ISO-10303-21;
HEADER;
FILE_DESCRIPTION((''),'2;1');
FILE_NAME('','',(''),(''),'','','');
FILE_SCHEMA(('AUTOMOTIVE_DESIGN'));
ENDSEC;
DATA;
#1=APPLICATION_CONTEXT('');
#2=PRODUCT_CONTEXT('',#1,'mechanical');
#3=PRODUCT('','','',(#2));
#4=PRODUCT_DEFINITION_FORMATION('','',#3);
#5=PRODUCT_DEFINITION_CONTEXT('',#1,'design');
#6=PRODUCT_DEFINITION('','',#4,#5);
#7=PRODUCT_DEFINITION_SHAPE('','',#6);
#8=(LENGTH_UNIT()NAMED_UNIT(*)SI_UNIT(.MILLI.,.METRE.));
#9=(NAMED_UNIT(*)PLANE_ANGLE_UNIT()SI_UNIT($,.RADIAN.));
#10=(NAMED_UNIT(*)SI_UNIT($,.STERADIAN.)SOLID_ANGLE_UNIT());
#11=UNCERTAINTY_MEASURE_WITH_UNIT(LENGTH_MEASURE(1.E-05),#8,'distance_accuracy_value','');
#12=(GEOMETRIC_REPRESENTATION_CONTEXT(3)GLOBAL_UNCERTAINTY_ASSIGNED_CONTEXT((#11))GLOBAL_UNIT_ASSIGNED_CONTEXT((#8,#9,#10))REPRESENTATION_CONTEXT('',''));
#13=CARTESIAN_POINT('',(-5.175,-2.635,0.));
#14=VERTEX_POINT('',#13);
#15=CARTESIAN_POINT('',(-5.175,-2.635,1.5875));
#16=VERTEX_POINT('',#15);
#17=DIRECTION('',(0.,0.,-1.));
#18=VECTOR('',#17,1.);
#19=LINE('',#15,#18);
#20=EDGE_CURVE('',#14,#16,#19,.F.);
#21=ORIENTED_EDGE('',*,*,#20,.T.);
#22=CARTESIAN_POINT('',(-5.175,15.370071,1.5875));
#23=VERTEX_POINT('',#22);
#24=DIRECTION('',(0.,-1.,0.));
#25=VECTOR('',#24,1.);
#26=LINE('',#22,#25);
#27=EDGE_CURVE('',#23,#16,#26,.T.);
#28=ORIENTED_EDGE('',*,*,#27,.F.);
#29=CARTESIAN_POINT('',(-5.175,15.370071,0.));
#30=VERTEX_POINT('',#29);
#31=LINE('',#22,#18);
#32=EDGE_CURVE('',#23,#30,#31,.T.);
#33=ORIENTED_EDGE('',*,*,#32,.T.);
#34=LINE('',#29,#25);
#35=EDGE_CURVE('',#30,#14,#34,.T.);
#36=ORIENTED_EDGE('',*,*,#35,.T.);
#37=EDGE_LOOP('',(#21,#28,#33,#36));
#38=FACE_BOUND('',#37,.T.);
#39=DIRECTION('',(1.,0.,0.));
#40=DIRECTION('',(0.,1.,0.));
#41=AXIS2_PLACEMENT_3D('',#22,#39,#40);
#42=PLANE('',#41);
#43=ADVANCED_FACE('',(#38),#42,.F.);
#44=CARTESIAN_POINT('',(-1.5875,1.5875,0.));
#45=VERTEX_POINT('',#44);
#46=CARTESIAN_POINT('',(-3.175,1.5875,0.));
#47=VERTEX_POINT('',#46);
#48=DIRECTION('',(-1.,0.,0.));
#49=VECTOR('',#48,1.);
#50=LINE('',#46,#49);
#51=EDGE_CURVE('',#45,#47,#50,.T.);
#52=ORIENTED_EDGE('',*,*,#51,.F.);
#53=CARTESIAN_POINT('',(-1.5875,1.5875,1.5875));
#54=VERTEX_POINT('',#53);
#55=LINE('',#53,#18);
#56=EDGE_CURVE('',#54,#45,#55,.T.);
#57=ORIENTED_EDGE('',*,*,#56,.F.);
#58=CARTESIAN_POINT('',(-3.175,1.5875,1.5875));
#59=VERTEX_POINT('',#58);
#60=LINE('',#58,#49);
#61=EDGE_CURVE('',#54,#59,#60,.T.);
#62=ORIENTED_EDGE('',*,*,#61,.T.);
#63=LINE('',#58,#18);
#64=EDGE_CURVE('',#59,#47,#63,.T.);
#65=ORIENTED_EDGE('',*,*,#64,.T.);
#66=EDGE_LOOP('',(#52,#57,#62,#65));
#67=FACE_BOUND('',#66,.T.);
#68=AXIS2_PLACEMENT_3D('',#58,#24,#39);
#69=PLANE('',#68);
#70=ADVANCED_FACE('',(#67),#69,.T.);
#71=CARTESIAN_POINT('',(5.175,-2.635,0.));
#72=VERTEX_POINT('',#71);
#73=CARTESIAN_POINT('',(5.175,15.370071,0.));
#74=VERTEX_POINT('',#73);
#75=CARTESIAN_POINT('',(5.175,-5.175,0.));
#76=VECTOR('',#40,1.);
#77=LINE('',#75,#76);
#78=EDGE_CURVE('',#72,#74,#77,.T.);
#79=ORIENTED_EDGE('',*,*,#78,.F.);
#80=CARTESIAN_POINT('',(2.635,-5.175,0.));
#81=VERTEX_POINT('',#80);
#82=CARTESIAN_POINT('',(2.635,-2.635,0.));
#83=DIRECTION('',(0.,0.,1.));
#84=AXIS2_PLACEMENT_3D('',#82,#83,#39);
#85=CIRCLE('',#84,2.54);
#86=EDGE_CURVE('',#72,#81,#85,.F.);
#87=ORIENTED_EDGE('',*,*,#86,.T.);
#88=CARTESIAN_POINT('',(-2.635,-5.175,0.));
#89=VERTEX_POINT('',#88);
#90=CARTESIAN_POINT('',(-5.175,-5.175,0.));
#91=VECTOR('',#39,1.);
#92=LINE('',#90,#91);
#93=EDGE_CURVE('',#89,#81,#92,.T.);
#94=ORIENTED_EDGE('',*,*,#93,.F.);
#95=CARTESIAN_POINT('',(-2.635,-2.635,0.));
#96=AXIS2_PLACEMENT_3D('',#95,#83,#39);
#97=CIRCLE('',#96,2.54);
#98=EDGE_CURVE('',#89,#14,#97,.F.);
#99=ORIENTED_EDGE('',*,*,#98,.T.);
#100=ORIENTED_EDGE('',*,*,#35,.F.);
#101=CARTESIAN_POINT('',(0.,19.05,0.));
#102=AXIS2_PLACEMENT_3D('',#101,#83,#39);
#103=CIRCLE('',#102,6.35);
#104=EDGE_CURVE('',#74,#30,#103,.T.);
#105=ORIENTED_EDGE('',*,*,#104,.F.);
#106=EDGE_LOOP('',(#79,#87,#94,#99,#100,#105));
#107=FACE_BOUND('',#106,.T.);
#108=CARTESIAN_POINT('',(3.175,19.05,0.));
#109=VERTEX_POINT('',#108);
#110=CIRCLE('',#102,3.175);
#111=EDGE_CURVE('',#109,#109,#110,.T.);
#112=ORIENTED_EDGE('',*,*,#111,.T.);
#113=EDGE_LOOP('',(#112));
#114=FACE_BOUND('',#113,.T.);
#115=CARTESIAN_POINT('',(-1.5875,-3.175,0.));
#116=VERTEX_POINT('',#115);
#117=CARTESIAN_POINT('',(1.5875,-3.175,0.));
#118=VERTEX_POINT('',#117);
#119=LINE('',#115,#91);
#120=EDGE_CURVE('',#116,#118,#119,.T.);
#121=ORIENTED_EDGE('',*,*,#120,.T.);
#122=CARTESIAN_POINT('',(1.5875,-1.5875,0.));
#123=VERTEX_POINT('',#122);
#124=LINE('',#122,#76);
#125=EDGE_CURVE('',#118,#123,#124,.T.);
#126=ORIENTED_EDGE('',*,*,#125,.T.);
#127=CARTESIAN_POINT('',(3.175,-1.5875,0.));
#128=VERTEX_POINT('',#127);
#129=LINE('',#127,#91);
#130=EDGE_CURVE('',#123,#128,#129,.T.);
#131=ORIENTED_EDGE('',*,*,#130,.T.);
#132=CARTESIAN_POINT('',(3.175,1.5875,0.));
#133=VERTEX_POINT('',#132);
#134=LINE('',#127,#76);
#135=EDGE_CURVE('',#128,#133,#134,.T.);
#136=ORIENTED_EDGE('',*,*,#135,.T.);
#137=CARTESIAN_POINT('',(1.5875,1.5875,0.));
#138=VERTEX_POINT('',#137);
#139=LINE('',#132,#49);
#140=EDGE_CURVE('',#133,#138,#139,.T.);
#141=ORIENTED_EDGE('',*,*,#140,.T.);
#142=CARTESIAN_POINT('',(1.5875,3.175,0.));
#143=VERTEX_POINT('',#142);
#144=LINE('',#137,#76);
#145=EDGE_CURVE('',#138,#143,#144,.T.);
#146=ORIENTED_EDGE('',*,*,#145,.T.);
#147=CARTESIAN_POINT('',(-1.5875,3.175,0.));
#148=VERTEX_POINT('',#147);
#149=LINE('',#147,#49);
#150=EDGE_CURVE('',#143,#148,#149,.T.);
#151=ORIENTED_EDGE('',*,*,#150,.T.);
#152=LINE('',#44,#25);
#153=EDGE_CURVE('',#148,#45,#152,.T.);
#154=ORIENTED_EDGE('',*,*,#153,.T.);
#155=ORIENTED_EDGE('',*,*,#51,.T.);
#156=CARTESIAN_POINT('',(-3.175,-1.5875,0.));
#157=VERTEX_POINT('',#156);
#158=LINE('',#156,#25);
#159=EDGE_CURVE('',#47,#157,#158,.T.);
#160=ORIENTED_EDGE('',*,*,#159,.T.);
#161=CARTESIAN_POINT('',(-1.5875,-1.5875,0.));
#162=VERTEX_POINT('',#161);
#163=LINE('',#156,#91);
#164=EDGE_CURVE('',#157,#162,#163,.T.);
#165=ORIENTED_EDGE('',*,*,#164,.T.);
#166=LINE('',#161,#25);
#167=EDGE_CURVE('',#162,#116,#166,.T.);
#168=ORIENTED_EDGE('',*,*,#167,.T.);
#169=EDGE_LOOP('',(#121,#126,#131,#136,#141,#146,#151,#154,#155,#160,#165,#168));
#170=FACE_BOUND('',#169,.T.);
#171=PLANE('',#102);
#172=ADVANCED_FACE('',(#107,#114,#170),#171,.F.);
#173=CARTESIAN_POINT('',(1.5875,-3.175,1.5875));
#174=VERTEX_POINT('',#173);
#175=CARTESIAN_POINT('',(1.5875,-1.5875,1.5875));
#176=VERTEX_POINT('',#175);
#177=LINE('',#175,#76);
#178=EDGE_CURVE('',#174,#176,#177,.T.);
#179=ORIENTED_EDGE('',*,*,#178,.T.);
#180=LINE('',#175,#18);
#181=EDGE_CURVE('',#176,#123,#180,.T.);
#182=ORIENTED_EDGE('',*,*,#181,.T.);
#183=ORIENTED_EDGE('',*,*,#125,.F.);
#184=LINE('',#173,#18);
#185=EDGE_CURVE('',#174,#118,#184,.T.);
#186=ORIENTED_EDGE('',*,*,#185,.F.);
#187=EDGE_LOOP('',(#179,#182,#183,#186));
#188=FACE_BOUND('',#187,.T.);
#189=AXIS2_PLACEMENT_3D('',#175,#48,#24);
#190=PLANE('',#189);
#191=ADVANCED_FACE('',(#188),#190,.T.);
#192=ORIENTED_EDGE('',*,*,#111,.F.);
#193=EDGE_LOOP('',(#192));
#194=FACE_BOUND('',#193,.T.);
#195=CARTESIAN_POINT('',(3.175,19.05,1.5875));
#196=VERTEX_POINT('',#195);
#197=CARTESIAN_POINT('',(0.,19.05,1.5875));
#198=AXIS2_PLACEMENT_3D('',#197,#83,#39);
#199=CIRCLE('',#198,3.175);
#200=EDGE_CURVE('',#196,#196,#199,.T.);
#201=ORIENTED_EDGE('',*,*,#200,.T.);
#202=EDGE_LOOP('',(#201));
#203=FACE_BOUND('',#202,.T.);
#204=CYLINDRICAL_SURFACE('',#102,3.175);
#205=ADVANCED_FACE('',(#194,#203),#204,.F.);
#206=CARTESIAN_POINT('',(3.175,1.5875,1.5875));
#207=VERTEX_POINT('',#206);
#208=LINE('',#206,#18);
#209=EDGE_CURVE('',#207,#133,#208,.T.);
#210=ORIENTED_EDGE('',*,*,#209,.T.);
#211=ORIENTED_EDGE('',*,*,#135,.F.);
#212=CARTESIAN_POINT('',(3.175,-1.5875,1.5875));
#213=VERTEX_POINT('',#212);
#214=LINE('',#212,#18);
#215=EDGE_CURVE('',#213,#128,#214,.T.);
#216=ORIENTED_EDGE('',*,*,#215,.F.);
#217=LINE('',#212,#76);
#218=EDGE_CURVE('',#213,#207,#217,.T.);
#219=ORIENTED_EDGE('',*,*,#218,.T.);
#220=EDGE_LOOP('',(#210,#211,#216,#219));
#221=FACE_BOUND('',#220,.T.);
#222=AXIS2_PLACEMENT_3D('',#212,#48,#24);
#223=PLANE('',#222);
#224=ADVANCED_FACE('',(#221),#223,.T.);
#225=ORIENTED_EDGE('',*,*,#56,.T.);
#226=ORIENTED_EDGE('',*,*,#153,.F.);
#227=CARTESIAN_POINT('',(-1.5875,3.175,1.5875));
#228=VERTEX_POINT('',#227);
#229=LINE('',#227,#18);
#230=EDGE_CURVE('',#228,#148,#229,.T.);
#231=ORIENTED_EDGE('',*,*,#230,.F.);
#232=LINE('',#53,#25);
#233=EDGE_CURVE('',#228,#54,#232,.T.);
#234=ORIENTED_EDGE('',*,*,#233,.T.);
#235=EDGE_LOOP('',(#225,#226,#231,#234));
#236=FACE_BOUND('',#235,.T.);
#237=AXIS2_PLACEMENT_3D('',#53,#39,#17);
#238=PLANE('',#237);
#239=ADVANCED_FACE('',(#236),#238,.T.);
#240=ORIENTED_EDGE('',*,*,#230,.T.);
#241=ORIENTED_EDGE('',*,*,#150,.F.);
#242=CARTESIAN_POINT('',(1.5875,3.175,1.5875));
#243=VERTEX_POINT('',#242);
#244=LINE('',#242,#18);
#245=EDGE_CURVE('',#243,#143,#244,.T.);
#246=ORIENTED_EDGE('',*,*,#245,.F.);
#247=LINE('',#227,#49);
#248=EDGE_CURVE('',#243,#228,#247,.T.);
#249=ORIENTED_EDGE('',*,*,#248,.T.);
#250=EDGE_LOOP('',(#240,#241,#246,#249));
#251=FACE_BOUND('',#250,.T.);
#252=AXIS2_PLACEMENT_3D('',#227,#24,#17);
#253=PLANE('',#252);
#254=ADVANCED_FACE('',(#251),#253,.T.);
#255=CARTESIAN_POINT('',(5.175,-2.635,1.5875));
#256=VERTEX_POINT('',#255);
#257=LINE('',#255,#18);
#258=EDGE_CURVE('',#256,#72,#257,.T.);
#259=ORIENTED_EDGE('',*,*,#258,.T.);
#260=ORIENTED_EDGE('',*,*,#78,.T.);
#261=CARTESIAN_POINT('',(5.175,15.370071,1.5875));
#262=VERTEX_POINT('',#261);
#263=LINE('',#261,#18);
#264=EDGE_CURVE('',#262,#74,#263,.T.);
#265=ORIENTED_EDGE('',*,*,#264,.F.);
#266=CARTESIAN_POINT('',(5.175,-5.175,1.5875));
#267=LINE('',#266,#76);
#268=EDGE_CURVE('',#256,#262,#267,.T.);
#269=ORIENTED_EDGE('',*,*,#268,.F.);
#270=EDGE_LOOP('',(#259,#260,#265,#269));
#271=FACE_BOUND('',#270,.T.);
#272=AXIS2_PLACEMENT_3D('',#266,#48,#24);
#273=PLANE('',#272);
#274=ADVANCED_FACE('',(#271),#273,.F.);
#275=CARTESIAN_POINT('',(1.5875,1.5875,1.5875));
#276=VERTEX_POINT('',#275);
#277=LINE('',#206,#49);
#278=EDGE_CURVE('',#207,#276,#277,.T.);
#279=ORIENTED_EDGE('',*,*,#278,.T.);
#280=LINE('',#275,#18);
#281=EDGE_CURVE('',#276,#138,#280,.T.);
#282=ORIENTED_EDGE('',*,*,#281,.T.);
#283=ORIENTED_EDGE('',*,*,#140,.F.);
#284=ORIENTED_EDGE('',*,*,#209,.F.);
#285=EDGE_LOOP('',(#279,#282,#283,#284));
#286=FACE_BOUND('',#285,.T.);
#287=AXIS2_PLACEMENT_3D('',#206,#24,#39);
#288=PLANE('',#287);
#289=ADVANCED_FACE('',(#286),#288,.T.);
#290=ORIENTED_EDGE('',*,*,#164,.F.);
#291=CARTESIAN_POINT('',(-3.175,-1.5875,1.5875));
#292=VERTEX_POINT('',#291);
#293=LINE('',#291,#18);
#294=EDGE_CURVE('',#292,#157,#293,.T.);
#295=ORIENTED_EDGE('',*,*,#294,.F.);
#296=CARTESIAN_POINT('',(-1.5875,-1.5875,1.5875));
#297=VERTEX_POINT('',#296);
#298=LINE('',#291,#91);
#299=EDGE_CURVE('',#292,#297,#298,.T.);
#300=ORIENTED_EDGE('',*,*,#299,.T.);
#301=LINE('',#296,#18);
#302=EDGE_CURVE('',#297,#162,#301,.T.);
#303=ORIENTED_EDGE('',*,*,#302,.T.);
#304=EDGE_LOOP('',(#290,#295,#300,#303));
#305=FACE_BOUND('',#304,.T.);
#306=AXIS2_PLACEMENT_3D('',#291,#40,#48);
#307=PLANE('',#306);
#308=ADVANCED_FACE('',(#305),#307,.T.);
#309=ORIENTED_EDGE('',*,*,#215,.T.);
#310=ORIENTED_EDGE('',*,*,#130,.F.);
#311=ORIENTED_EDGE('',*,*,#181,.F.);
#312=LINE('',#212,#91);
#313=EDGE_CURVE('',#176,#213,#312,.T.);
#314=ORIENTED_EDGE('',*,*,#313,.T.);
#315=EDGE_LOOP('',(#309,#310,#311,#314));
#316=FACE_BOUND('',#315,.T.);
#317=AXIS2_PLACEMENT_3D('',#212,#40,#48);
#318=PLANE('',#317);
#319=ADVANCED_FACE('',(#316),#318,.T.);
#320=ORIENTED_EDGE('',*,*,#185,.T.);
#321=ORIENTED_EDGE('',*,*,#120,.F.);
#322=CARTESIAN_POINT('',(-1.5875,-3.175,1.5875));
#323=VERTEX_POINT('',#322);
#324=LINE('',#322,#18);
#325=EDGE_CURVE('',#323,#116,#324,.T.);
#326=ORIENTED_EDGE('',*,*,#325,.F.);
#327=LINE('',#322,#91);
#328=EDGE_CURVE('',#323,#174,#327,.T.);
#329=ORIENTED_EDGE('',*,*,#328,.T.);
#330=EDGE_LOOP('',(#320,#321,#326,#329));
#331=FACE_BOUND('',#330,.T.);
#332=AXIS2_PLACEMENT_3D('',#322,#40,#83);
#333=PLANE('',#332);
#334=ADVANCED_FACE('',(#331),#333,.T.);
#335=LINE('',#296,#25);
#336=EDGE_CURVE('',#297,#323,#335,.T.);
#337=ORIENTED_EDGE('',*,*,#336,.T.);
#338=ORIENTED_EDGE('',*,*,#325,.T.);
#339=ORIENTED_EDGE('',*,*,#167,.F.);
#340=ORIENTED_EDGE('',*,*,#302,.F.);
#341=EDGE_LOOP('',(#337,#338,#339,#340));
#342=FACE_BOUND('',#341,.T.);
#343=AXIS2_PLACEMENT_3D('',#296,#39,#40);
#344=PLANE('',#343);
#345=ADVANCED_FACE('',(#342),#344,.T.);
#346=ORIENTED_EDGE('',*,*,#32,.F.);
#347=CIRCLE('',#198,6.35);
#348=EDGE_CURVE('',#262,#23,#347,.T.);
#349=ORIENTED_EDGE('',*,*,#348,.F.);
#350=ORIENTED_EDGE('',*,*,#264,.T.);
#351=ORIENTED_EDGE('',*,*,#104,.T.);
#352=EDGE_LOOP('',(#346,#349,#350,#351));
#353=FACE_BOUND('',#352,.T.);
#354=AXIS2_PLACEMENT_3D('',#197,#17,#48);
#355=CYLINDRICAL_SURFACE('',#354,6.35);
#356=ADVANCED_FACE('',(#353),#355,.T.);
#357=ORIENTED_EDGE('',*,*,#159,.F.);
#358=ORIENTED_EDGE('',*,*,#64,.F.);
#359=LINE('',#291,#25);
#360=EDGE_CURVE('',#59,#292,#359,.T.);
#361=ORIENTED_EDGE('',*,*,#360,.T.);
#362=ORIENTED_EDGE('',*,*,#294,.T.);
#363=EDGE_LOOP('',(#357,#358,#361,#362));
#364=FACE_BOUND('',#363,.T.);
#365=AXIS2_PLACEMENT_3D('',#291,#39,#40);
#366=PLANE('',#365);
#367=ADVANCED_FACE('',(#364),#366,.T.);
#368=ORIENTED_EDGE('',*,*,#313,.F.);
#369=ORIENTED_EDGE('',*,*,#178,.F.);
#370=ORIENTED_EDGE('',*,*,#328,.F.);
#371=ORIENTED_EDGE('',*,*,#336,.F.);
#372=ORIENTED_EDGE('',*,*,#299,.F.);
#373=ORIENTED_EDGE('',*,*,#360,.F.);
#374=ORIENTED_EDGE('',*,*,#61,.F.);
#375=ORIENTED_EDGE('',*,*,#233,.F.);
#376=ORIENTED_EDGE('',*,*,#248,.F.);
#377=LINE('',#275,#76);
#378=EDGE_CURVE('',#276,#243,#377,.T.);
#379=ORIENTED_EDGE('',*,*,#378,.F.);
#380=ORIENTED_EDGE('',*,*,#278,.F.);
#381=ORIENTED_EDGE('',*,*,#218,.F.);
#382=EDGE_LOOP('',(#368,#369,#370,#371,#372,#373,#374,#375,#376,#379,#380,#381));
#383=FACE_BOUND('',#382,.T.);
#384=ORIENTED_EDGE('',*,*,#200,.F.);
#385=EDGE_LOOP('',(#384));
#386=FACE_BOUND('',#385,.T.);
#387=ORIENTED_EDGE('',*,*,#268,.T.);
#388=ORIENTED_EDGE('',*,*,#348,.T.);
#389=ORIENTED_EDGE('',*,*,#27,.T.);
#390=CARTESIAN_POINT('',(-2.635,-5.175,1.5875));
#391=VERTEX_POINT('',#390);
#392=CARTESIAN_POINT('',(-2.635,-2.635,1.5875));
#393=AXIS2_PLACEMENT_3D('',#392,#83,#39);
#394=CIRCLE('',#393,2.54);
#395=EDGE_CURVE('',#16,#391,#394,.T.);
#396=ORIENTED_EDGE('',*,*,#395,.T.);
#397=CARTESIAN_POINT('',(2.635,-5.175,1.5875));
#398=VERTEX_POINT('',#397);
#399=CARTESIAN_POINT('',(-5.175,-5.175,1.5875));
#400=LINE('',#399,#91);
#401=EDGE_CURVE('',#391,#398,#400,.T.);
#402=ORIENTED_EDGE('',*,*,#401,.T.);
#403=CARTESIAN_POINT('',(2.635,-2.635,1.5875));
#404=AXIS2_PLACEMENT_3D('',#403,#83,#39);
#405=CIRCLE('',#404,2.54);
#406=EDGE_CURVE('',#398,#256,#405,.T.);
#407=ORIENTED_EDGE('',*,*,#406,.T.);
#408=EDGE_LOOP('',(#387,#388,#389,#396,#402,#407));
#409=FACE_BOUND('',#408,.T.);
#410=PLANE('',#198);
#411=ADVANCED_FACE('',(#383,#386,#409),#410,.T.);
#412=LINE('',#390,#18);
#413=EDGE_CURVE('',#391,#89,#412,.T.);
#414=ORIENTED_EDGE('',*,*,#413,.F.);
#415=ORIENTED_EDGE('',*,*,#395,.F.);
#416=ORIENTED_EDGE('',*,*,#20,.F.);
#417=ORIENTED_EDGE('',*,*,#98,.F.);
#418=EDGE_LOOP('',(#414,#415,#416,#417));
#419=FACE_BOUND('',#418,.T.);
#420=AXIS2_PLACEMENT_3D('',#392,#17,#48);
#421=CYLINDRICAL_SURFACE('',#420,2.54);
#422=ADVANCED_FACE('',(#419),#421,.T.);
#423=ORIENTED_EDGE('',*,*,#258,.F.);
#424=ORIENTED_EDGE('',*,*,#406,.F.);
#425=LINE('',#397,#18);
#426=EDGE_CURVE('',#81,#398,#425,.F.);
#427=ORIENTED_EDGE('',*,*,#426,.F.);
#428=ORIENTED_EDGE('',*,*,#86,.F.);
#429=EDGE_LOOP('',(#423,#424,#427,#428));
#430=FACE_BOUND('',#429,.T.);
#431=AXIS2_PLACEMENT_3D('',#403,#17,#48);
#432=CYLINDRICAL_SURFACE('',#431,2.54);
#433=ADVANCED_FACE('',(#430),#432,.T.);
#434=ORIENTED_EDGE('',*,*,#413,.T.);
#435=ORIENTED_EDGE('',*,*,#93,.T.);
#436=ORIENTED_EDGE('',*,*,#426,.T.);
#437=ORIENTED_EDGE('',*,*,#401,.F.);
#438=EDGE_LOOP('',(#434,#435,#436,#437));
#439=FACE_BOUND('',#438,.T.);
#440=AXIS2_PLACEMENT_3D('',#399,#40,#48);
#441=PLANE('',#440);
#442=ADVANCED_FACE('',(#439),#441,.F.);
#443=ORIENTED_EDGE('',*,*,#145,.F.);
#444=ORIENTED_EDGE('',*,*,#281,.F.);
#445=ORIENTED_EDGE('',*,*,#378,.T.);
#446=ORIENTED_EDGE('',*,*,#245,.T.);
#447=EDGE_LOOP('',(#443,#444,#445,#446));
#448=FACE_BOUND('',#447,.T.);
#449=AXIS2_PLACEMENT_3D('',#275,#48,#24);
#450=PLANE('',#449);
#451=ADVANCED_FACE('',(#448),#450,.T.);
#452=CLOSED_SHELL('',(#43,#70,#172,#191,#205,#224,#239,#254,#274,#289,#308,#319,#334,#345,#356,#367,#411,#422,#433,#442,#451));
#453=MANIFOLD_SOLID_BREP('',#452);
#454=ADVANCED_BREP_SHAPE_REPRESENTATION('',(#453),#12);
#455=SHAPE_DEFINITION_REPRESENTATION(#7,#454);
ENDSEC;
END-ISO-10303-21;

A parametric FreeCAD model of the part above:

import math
import FreeCAD as App
import Part
import Sketcher
from FreeCAD import Vector
Q = App.Units.Quantity


def edges_at(feature, points):
    """Names of the edges that pass closest to the given points."""
    edges = feature.Shape.Edges
    near = lambda p: min(range(len(edges)), key=lambda i: edges[i].distToShape(Part.Vertex(*p))[0])
    return sorted({f"Edge{near(p) + 1}" for p in points})


def add_polygon(sketch, points):
    """Adds a closed chain of lines whose ends are joined by coincident constraints."""
    first, n = sketch.GeometryCount, len(points)
    for a, b in zip(points, points[1:] + points[:1]):
        sketch.addGeometry(Part.LineSegment(App.Vector(*a, 0), App.Vector(*b, 0)), False)
    for i in range(n):
        sketch.addConstraint(Sketcher.Constraint("Coincident", first + i, 2, first + (i + 1) % n, 1))

doc = App.newDocument("Part")
body = doc.addObject("PartDesign::Body", "Body")

# Sketch on XY plane
sketch1 = body.newObject("Sketcher::SketchObject", "Sketch")
sketch1.AttachmentSupport = (doc.getObject("XY_Plane"), [""])
sketch1.MapMode = "FlatFace"
sketch1.addGeometry(Part.LineSegment(Vector(-5.2, 15.4, 0), Vector(-5.2, -5.2, 0)), False)  # 0
sketch1.addGeometry(Part.LineSegment(Vector(-5.2, -5.2, 0), Vector(5.2, -5.2, 0)), False)  # 1
sketch1.addGeometry(Part.LineSegment(Vector(5.2, -5.2, 0), Vector(5.2, 15.4, 0)), False)  # 2
sketch1.addGeometry(Part.ArcOfCircle(Part.Circle(Vector(0, 19.1, 0), Vector(0, 0, 1), 6.3), math.radians(-35), math.radians(215)), False)  # 3
add_polygon(sketch1, [(-1.6, -1.6), (-3.2, -1.6), (-3.2, 1.6), (-1.6, 1.6), (-1.6, 3.2), (1.6, 3.2), (1.6, 1.6), (3.2, 1.6), (3.2, -1.6), (1.6, -1.6), (1.6, -3.2), (-1.6, -3.2)])  # lines 4-15
sketch1.addConstraint(Sketcher.Constraint("Coincident", 0, 2, 1, 1))
sketch1.addConstraint(Sketcher.Constraint("Coincident", 1, 2, 2, 1))
sketch1.addConstraint(Sketcher.Constraint("Coincident", 2, 2, 3, 1))
sketch1.addConstraint(Sketcher.Constraint("Coincident", 3, 2, 0, 1))
sketch1.addConstraint(Sketcher.Constraint("Vertical", 0))
sketch1.addConstraint(Sketcher.Constraint("Horizontal", 1))
sketch1.addConstraint(Sketcher.Constraint("Vertical", 2))
sketch1.addConstraint(Sketcher.Constraint("Horizontal", 4))
sketch1.addConstraint(Sketcher.Constraint("Vertical", 5))
sketch1.addConstraint(Sketcher.Constraint("Horizontal", 6))
sketch1.addConstraint(Sketcher.Constraint("Vertical", 7))
sketch1.addConstraint(Sketcher.Constraint("Horizontal", 8))
sketch1.addConstraint(Sketcher.Constraint("Vertical", 9))
sketch1.addConstraint(Sketcher.Constraint("Horizontal", 10))
sketch1.addConstraint(Sketcher.Constraint("Vertical", 11))
sketch1.addConstraint(Sketcher.Constraint("Horizontal", 12))
sketch1.addConstraint(Sketcher.Constraint("Vertical", 13))
sketch1.addConstraint(Sketcher.Constraint("Horizontal", 14))
sketch1.addConstraint(Sketcher.Constraint("Vertical", 15))
sketch1.addConstraint(Sketcher.Constraint("Symmetric", 4, 2, 10, 2, -1, 1))
sketch1.addConstraint(Sketcher.Constraint("Symmetric", 6, 2, 12, 2, -1, 1))
sketch1.addConstraint(Sketcher.Constraint("Symmetric", 8, 2, 14, 2, -1, 1))
sketch1.addConstraint(Sketcher.Constraint("Symmetric", 2, 2, 3, 2, -2))
sketch1.addConstraint(Sketcher.Constraint("Symmetric", 6, 2, 9, 2, -2))
sketch1.addConstraint(Sketcher.Constraint("Equal", 14, 5))
sketch1.addConstraint(Sketcher.Constraint("Equal", 12, 7))
sketch1.addConstraint(Sketcher.Constraint("Radius", 3, Q("0.25 in")))
sketch1.addConstraint(Sketcher.Constraint("DistanceX", 4, 2, 4, 1, Q("0.0625 in")))
sketch1.addConstraint(Sketcher.Constraint("DistanceX", 8, 1, 8, 2, Q("0.125 in")))
sketch1.addConstraint(Sketcher.Constraint("DistanceY", -1, 1, 3, 3, Q("0.75 in")))
sketch1.addConstraint(Sketcher.Constraint("DistanceX", 1, 1, 1, 2, 10.35))
sketch1.addConstraint(Sketcher.Constraint("DistanceY", 0, 2, 0, 1, 20.545071))
pad1 = body.newObject("PartDesign::Pad", "Pad")
pad1.Profile = sketch1
pad1.Length = Q("0.0625 in")
doc.recompute()

fillet = body.newObject("PartDesign::Fillet", "Fillet")
fillet.Base = (pad1, edges_at(pad1, [(5.175, -5.175, 0.794), (-5.175, -5.175, 0.794)]))
fillet.Radius = Q("0.1 in")

# Sketch on XY plane
sketch2 = body.newObject("Sketcher::SketchObject", "Sketch001")
sketch2.AttachmentSupport = (doc.getObject("XY_Plane"), [""])
sketch2.MapMode = "FlatFace"
sketch2.AttachmentOffset = App.Placement(Vector(0, 0, 0.0625 * 25.4), App.Rotation())
sketch2.addGeometry(Part.Circle(Vector(0, 19.1, 0), Vector(0, 0, 1), 3.2), False)
sketch2.addConstraint(Sketcher.Constraint("PointOnObject", 0, 3, -2))
sketch2.addConstraint(Sketcher.Constraint("Diameter", 0, Q("0.25 in")))
sketch2.addConstraint(Sketcher.Constraint("DistanceY", -1, 1, 0, 3, Q("0.75 in")))
pocket1 = body.newObject("PartDesign::Pocket", "Pocket")
pocket1.Profile = sketch2
pocket1.Type = "ThroughAll"

doc.recompute()
